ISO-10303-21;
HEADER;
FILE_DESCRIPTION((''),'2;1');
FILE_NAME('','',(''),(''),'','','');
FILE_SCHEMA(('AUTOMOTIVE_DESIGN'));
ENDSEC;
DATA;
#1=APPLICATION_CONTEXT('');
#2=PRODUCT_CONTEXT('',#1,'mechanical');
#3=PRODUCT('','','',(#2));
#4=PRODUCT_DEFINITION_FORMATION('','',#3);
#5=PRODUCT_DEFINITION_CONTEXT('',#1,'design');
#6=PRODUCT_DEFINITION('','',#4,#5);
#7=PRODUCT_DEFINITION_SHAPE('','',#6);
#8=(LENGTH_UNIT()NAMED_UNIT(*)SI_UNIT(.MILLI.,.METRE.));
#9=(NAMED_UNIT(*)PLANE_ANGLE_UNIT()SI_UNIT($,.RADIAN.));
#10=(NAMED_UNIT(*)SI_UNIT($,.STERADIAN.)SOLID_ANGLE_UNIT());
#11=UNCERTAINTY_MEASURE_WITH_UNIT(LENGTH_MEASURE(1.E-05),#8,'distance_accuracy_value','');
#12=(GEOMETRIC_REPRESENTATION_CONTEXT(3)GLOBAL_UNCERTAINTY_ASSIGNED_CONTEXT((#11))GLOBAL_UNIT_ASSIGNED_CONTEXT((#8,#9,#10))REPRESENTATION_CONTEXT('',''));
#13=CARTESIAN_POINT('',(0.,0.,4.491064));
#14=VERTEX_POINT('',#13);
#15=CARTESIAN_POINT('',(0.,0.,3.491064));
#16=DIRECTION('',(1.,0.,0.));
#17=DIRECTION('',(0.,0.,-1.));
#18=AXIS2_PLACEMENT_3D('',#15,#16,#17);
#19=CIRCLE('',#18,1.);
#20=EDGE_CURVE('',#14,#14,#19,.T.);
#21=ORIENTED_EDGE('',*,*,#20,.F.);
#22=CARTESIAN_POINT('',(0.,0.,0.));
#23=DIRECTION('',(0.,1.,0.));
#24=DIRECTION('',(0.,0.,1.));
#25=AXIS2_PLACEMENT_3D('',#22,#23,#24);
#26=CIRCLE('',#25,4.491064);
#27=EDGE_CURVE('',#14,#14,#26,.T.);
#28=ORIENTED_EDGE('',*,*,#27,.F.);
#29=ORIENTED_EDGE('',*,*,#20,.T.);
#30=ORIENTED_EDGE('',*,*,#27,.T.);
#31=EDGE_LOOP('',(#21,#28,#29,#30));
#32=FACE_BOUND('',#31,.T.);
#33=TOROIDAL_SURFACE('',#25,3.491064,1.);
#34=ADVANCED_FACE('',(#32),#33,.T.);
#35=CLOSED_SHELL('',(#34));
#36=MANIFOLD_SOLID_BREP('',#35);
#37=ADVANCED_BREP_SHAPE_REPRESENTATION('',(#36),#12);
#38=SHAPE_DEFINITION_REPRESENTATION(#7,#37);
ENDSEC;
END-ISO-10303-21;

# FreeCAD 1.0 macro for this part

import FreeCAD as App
import Part
import Sketcher
Q = App.Units.Quantity

doc = App.newDocument("Part")
body = doc.addObject("PartDesign::Body", "Body")

# Sketch on YZ plane
sketch1 = doc.addObject("Sketcher::SketchObject", "Sketch")
body.addObject(sketch1)
sketch1.AttachmentSupport = (doc.YZ_Plane, [""])
sketch1.MapMode = "FlatFace"
sketch1.addGeometry(Part.Circle(App.Vector(0, 3.491064, 0), App.Vector(0, 0, 1), 1), False)
sketch1.addConstraint([
    Sketcher.Constraint("PointOnObject", 0, 3, -2),
    Sketcher.Constraint("Diameter", 0, Q("2 mm")),
    Sketcher.Constraint("DistanceY", -1, 1, 0, 3, Q("3.491064 mm")),
])

# Sketch on XZ plane
sketch2 = doc.addObject("Sketcher::SketchObject", "Sketch001")
body.addObject(sketch2)
sketch2.AttachmentSupport = (doc.XZ_Plane, [""])
sketch2.MapMode = "FlatFace"
sketch2.addGeometry(Part.Circle(App.Vector(0, 0, 0), App.Vector(0, 0, 1), 3.5), False)
sketch2.addConstraint([
    Sketcher.Constraint("Coincident", 0, 3, -1, 1),
    Sketcher.Constraint("Diameter", 0, Q("7 mm")),
])
doc.recompute()

additivepipe = doc.addObject("PartDesign::AdditivePipe", "AdditivePipe")
body.addObject(additivepipe)
additivepipe.Profile = sketch1
additivepipe.Spine = (sketch2, ["Edge1"])

doc.recompute()
